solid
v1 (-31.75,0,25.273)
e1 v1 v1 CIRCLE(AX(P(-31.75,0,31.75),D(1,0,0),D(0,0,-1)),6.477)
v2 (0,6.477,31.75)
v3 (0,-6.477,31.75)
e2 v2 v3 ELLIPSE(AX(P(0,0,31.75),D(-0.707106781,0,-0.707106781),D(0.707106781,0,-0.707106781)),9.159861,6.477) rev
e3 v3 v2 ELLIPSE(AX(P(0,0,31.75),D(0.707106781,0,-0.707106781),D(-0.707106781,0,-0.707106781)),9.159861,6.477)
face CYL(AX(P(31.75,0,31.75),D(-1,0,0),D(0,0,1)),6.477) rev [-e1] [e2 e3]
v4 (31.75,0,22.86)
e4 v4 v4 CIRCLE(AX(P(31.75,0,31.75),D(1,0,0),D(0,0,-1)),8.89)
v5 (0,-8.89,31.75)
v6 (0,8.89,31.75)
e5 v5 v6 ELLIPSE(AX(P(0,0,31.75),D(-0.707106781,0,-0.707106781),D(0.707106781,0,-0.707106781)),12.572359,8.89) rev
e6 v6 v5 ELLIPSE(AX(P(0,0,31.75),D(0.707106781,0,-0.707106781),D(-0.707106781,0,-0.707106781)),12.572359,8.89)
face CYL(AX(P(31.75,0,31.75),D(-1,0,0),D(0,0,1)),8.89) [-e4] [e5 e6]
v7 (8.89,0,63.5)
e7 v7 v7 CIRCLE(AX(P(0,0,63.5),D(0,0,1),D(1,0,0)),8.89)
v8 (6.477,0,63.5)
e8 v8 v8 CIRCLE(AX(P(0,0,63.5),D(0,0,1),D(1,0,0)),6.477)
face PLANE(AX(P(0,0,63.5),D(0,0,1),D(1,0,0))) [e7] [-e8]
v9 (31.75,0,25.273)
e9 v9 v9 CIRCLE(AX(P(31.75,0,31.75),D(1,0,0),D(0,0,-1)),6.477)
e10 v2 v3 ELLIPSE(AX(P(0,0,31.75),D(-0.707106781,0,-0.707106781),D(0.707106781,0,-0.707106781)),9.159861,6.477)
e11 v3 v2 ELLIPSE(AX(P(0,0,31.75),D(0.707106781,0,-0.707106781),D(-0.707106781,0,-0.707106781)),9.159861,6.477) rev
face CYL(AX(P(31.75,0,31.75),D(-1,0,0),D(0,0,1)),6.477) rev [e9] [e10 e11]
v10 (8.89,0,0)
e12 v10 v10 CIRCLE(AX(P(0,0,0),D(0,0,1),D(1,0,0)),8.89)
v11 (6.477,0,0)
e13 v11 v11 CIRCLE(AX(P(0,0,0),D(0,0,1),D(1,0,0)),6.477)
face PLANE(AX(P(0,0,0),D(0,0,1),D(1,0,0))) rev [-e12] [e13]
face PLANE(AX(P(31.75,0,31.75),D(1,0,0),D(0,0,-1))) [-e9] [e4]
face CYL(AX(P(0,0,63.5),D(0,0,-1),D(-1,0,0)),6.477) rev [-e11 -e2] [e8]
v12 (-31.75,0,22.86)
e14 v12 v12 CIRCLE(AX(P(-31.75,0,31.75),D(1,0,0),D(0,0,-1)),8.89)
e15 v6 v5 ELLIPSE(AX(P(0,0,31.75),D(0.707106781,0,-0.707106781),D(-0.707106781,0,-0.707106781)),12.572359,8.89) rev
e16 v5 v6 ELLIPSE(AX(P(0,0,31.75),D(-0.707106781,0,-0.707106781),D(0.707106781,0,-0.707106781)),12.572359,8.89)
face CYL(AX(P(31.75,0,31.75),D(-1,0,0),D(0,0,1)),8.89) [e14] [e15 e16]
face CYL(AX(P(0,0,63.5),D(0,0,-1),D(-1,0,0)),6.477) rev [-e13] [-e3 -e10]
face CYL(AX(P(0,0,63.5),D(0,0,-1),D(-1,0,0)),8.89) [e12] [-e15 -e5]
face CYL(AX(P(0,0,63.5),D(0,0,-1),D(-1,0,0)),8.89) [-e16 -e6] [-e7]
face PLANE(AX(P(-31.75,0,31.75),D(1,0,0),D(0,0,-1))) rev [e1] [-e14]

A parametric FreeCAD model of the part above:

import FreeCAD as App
import Part
import Sketcher
Q = App.Units.Quantity

doc = App.newDocument("Part")
params = doc.addObject("Spreadsheet::Sheet", "Params")
for row, (alias, value) in enumerate([
    ("sketch1_diameter", "0.7 in"),
    ("sketch1_diameter2", "0.51 in"),
    ("pad1_length", "2.5 in"),
    ("sketch2_diameter", "0.7 in"),
    ("sketch2_diameter2", "0.51 in"),
    ("pad2_length", "2.5 in"),
    ("sketch3_diameter", "0.51 in"),
    ("sketch4_diameter", "0.51 in"),
], start=1):
    params.set(f"A{row}", alias)
    params.set(f"B{row}", "=" + value)
    params.setAlias(f"B{row}", alias)

body = doc.addObject("PartDesign::Body", "Body")

# Sketch on XY plane
sketch1 = body.newObject("Sketcher::SketchObject", "Sketch")
sketch1.AttachmentSupport = (doc.getObject("XY_Plane"), [""])
sketch1.MapMode = "FlatFace"
sketch1.addGeometry(Part.Circle(App.Vector(0, 0, 0), App.Vector(0, 0, 1), 8.89), False)
sketch1.addGeometry(Part.Circle(App.Vector(0, 0, 0), App.Vector(0, 0, 1), 6.477), False)
sketch1.addConstraint(Sketcher.Constraint("Coincident", 0, 3, -1, 1))
sketch1.addConstraint(Sketcher.Constraint("Coincident", 1, 3, -1, 1))
sketch1.addConstraint(Sketcher.Constraint("Diameter", 0, Q("0.7 in")))
sketch1.addConstraint(Sketcher.Constraint("Diameter", 1, Q("0.51 in")))
sketch1.setExpression("Constraints[2]", "Params.sketch1_diameter")
sketch1.setExpression("Constraints[3]", "Params.sketch1_diameter2")
pad1 = body.newObject("PartDesign::Pad", "Pad")
pad1.Profile = sketch1
pad1.setExpression("Length", "Params.pad1_length")

# Sketch on YZ plane
sketch2 = body.newObject("Sketcher::SketchObject", "Sketch001")
sketch2.AttachmentSupport = (doc.getObject("YZ_Plane"), [""])
sketch2.MapMode = "FlatFace"
sketch2.addGeometry(Part.Circle(App.Vector(0, 31.75, 0), App.Vector(0, 0, 1), 8.89), False)
sketch2.addGeometry(Part.Circle(App.Vector(0, 31.75, 0), App.Vector(0, 0, 1), 6.477), False)
sketch2.addConstraint(Sketcher.Constraint("Coincident", 1, 3, 0, 3))
sketch2.addConstraint(Sketcher.Constraint("PointOnObject", 0, 3, -2))
sketch2.addConstraint(Sketcher.Constraint("Diameter", 0, Q("0.7 in")))
sketch2.addConstraint(Sketcher.Constraint("Diameter", 1, Q("0.51 in")))
sketch2.addConstraint(Sketcher.Constraint("DistanceY", -1, 1, 0, 3, Q("1.25 in")))
sketch2.setExpression("Constraints[2]", "Params.sketch2_diameter")
sketch2.setExpression("Constraints[3]", "Params.sketch2_diameter2")
pad2 = body.newObject("PartDesign::Pad", "Pad001")
pad2.Profile = sketch2
pad2.setExpression("Length", "Params.pad2_length")
pad2.Midplane = True

# Sketch on XY plane
sketch3 = body.newObject("Sketcher::SketchObject", "Sketch002")
sketch3.AttachmentSupport = (doc.getObject("XY_Plane"), [""])
sketch3.MapMode = "FlatFace"
sketch3.addGeometry(Part.Circle(App.Vector(0, 0, 0), App.Vector(0, 0, 1), 6.477), False)
sketch3.addConstraint(Sketcher.Constraint("Coincident", 0, 3, -1, 1))
sketch3.addConstraint(Sketcher.Constraint("Diameter", 0, Q("0.51 in")))
sketch3.setExpression("Constraints[1]", "Params.sketch3_diameter")
pocket1 = body.newObject("PartDesign::Pocket", "Pocket")
pocket1.Profile = sketch3
pocket1.Type = "ThroughAll"
pocket1.Reversed = True

# Sketch on YZ plane
sketch4 = body.newObject("Sketcher::SketchObject", "Sketch003")
sketch4.AttachmentSupport = (doc.getObject("YZ_Plane"), [""])
sketch4.MapMode = "FlatFace"
sketch4.AttachmentOffset = App.Placement(App.Vector(0, 0, 1.25 * 25.4), App.Rotation())
sketch4.addGeometry(Part.Circle(App.Vector(0, 31.75, 0), App.Vector(0, 0, 1), 6.477), False)
sketch4.addConstraint(Sketcher.Constraint("PointOnObject", 0, 3, -2))
sketch4.addConstraint(Sketcher.Constraint("Diameter", 0, Q("0.51 in")))
sketch4.addConstraint(Sketcher.Constraint("DistanceY", -1, 1, 0, 3, Q("1.25 in")))
sketch4.setExpression("Constraints[1]", "Params.sketch4_diameter")
pocket2 = body.newObject("PartDesign::Pocket", "Pocket001")
pocket2.Profile = sketch4
pocket2.Type = "ThroughAll"

doc.recompute()
